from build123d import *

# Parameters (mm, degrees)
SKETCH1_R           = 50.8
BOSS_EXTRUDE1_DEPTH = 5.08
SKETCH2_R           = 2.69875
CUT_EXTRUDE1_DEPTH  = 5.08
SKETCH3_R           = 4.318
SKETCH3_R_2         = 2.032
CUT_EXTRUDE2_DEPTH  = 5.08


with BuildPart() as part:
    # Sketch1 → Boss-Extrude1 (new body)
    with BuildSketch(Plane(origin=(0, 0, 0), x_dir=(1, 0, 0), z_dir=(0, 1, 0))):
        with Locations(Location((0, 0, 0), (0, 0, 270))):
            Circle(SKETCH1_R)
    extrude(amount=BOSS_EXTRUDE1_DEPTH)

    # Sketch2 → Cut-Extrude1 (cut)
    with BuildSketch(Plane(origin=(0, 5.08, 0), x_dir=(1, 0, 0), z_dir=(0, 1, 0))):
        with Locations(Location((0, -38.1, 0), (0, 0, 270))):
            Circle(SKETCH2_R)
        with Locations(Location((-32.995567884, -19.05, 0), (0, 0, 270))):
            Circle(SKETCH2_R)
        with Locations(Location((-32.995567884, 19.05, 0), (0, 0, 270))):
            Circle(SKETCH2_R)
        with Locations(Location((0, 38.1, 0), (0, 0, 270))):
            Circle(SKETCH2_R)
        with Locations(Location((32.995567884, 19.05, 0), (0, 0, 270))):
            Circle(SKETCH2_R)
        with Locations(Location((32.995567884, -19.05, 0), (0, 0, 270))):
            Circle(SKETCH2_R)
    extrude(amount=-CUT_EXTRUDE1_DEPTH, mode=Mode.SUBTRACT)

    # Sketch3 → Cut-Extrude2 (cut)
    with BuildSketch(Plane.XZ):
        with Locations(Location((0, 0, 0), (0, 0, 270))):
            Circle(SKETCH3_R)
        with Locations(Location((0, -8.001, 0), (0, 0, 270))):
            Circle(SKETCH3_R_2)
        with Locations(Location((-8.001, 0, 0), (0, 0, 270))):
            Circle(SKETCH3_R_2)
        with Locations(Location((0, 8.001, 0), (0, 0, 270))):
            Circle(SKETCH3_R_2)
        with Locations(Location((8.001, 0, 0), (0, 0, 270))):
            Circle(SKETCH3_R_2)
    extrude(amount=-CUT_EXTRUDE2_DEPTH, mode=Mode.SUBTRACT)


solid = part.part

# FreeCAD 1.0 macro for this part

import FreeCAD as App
import Part
import Sketcher
from FreeCAD import Vector
Q = App.Units.Quantity

doc = App.newDocument("Part")
params = doc.addObject("Spreadsheet::Sheet", "Params")
for row, (alias, value) in enumerate([
    ("sketch1_diameter", "4 in"),
    ("pad1_length", "0.2 in"),
    ("pocket1_length", "0.2 in"),
    ("sketch3_diameter", "0.34 in"),
    ("sketch3_diameter2", "0.16 in"),
    ("pocket2_length", "0.2 in"),
], start=1):
    params.set(f"A{row}", alias)
    params.set(f"B{row}", "=" + value)
    params.setAlias(f"B{row}", alias)

body = doc.addObject("PartDesign::Body", "Body")

sketch1 = body.newObject("Sketcher::SketchObject", "Sketch")
sketch1.AttachmentSupport = (doc.getObject("XZ_Plane"), [""])
sketch1.MapMode = "FlatFace"
sketch1.addGeometry(Part.Circle(Vector(0, 0, 0), Vector(0, 0, 1), 51), False)
sketch1.addConstraint([
    Sketcher.Constraint("Coincident", 0, 3, -1, 1),
    Sketcher.Constraint("Diameter", 0, Q("4 in")),
])
sketch1.setExpression("Constraints[1]", "Params.sketch1_diameter")
pad1 = body.newObject("PartDesign::Pad", "Pad")
pad1.Profile = sketch1
pad1.setExpression("Length", "Params.pad1_length")
pad1.Reversed = True

sketch2 = body.newObject("Sketcher::SketchObject", "Sketch001")
sketch2.AttachmentSupport = (doc.getObject("XZ_Plane"), [""])
sketch2.MapMode = "FlatFace"
sketch2.AttachmentOffset = App.Placement(Vector(0, 0, -0.2 * 25.4), App.Rotation())
sketch2.addGeometry([
    Part.Circle(Vector(0, 38.1, 0), Vector(0, 0, 1), 2.7),
    Part.Circle(Vector(-33, 19.1, 0), Vector(0, 0, 1), 2.7),
    Part.Circle(Vector(-33, -19.1, 0), Vector(0, 0, 1), 2.7),
    Part.Circle(Vector(0, -38.1, 0), Vector(0, 0, 1), 2.7),
    Part.Circle(Vector(33, -19.1, 0), Vector(0, 0, 1), 2.7),
    Part.Circle(Vector(33, 19.1, 0), Vector(0, 0, 1), 2.7),
], False)
sketch2.addConstraint([
    Sketcher.Constraint("Equal", 0, 1),
    Sketcher.Constraint("Equal", 1, 2),
    Sketcher.Constraint("Equal", 2, 3),
    Sketcher.Constraint("Equal", 3, 4),
    Sketcher.Constraint("Equal", 4, 5),
    Sketcher.Constraint("Symmetric", 0, 3, 3, 3, -1, 1),
    Sketcher.Constraint("Symmetric", 1, 3, 4, 3, -1, 1),
    Sketcher.Constraint("Symmetric", 2, 3, 5, 3, -1, 1),
    Sketcher.Constraint("Symmetric", 2, 3, 4, 3, -2),
    Sketcher.Constraint("PointOnObject", 0, 3, -2),
    Sketcher.Constraint("DistanceY", 3, 3, 0, 3, Q("3 in")),
    Sketcher.Constraint("Diameter", 0, Q("0.2125 in")),
    Sketcher.Constraint("DistanceY", 2, 3, 1, 3, Q("1.5 in")),
    Sketcher.Constraint("DistanceX", 1, 3, -1, 1, 32.995568),
])
pocket1 = body.newObject("PartDesign::Pocket", "Pocket")
pocket1.Profile = sketch2
pocket1.setExpression("Length", "Params.pocket1_length")
pocket1.Reversed = True

sketch3 = body.newObject("Sketcher::SketchObject", "Sketch002")
sketch3.AttachmentSupport = (doc.getObject("XZ_Plane"), [""])
sketch3.MapMode = "FlatFace"
sketch3.addGeometry([
    Part.Circle(Vector(0, 0, 0), Vector(0, 0, 1), 4.3),
    Part.Circle(Vector(0, -8, 0), Vector(0, 0, 1), 2),
    Part.Circle(Vector(-8, 0, 0), Vector(0, 0, 1), 2),
    Part.Circle(Vector(0, 8, 0), Vector(0, 0, 1), 2),
    Part.Circle(Vector(8, 0, 0), Vector(0, 0, 1), 2),
], False)
sketch3.addConstraint([
    Sketcher.Constraint("Coincident", 0, 3, -1, 1),
    Sketcher.Constraint("Equal", 1, 2),
    Sketcher.Constraint("Equal", 2, 3),
    Sketcher.Constraint("Equal", 3, 4),
    Sketcher.Constraint("Symmetric", 1, 3, 3, 3, -1, 1),
    Sketcher.Constraint("Symmetric", 2, 3, 4, 3, -1, 1),
    Sketcher.Constraint("PointOnObject", 1, 3, -2),
    Sketcher.Constraint("PointOnObject", 2, 3, -1),
    Sketcher.Constraint("Diameter", 0, Q("0.34 in")),
    Sketcher.Constraint("Diameter", 1, Q("0.16 in")),
    Sketcher.Constraint("DistanceY", 1, 3, 3, 3, Q("0.63 in")),
    Sketcher.Constraint("DistanceX", 2, 3, 4, 3, Q("0.63 in")),
])
sketch3.setExpression("Constraints[8]", "Params.sketch3_diameter")
sketch3.setExpression("Constraints[9]", "Params.sketch3_diameter2")
pocket2 = body.newObject("PartDesign::Pocket", "Pocket001")
pocket2.Profile = sketch3
pocket2.setExpression("Length", "Params.pocket2_length")

doc.recompute()
